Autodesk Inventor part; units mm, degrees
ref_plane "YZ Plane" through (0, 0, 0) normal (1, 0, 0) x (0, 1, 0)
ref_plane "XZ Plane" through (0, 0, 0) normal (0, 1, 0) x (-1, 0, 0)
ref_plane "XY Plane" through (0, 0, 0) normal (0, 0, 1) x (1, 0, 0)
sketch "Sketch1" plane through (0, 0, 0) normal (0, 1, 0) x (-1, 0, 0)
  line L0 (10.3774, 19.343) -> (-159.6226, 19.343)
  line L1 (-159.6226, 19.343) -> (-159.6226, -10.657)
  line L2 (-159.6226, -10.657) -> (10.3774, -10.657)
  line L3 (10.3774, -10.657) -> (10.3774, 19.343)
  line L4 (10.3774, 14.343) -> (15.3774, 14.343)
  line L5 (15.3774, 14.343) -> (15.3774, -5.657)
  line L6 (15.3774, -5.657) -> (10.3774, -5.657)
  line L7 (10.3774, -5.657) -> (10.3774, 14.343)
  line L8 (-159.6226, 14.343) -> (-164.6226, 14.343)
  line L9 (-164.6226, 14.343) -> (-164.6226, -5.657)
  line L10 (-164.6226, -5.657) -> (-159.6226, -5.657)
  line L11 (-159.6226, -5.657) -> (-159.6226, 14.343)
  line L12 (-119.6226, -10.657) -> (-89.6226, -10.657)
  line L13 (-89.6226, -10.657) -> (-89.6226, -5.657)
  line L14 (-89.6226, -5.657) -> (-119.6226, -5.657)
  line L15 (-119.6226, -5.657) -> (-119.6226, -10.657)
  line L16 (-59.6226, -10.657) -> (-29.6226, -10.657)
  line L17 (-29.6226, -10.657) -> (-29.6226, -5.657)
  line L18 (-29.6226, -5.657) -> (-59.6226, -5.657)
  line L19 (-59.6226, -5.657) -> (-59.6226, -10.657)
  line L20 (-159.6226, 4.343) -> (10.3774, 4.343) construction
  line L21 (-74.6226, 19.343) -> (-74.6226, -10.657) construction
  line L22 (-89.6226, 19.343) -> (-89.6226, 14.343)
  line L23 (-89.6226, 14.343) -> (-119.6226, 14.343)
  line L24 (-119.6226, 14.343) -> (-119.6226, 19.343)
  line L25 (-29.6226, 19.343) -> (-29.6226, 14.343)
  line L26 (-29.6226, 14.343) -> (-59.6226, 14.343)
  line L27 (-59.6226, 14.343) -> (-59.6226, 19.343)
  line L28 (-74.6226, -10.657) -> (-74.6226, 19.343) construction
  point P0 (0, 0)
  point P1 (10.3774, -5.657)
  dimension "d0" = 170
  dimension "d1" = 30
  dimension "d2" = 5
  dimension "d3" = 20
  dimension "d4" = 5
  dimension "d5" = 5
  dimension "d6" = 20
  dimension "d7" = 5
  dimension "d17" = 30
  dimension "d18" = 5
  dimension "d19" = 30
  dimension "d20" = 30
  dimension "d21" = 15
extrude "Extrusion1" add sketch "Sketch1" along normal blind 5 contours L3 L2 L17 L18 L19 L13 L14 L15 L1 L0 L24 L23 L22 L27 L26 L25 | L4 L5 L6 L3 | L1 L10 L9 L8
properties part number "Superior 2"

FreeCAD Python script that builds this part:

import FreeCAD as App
import Part
import Sketcher

V = App.Vector
Q = App.Units.Quantity

doc = App.newDocument("Part")
body = doc.addObject("PartDesign::Body", "Body")

sketch1 = body.newObject("Sketcher::SketchObject", "Sketch")
sketch1.AttachmentSupport = (doc.getObject("XZ_Plane"), [""])
sketch1.MapMode = "FlatFace"
sketch1.addGeometry(Part.LineSegment(V(-10, 14, 0), V(-10, 19, 0)), False)
sketch1.addGeometry(Part.LineSegment(V(-10, 19, 0), V(30, 19, 0)), False)
sketch1.addGeometry(Part.LineSegment(V(30, 19, 0), V(30, 14, 0)), False)
sketch1.addGeometry(Part.LineSegment(V(30, 14, 0), V(60, 14, 0)), False)
sketch1.addGeometry(Part.LineSegment(V(60, 14, 0), V(60, 19, 0)), False)
sketch1.addGeometry(Part.LineSegment(V(60, 19, 0), V(90, 19, 0)), False)
sketch1.addGeometry(Part.LineSegment(V(90, 19, 0), V(90, 14, 0)), False)
sketch1.addGeometry(Part.LineSegment(V(90, 14, 0), V(120, 14, 0)), False)
sketch1.addGeometry(Part.LineSegment(V(120, 14, 0), V(120, 19, 0)), False)
sketch1.addGeometry(Part.LineSegment(V(120, 19, 0), V(160, 19, 0)), False)
sketch1.addGeometry(Part.LineSegment(V(160, 19, 0), V(160, 14, 0)), False)
sketch1.addGeometry(Part.LineSegment(V(160, 14, 0), V(165, 14, 0)), False)
sketch1.addGeometry(Part.LineSegment(V(165, 14, 0), V(165, -6, 0)), False)
sketch1.addGeometry(Part.LineSegment(V(165, -6, 0), V(160, -6, 0)), False)
sketch1.addGeometry(Part.LineSegment(V(160, -6, 0), V(160, -11, 0)), False)
sketch1.addGeometry(Part.LineSegment(V(160, -11, 0), V(120, -11, 0)), False)
sketch1.addGeometry(Part.LineSegment(V(120, -11, 0), V(120, -6, 0)), False)
sketch1.addGeometry(Part.LineSegment(V(120, -6, 0), V(90, -6, 0)), False)
sketch1.addGeometry(Part.LineSegment(V(90, -6, 0), V(90, -11, 0)), False)
sketch1.addGeometry(Part.LineSegment(V(90, -11, 0), V(60, -11, 0)), False)
sketch1.addGeometry(Part.LineSegment(V(60, -11, 0), V(60, -6, 0)), False)
sketch1.addGeometry(Part.LineSegment(V(60, -6, 0), V(30, -6, 0)), False)
sketch1.addGeometry(Part.LineSegment(V(30, -6, 0), V(30, -11, 0)), False)
sketch1.addGeometry(Part.LineSegment(V(30, -11, 0), V(-10, -11, 0)), False)
sketch1.addGeometry(Part.LineSegment(V(-10, -11, 0), V(-10, -6, 0)), False)
sketch1.addGeometry(Part.LineSegment(V(-10, -6, 0), V(-15, -6, 0)), False)
sketch1.addGeometry(Part.LineSegment(V(-15, -6, 0), V(-15, 14, 0)), False)
sketch1.addGeometry(Part.LineSegment(V(-15, 14, 0), V(-10, 14, 0)), False)
sketch1.addConstraint(Sketcher.Constraint("Coincident", 0, 2, 1, 1))
sketch1.addConstraint(Sketcher.Constraint("Coincident", 1, 2, 2, 1))
sketch1.addConstraint(Sketcher.Constraint("Coincident", 2, 2, 3, 1))
sketch1.addConstraint(Sketcher.Constraint("Coincident", 3, 2, 4, 1))
sketch1.addConstraint(Sketcher.Constraint("Coincident", 4, 2, 5, 1))
sketch1.addConstraint(Sketcher.Constraint("Coincident", 5, 2, 6, 1))
sketch1.addConstraint(Sketcher.Constraint("Coincident", 6, 2, 7, 1))
sketch1.addConstraint(Sketcher.Constraint("Coincident", 7, 2, 8, 1))
sketch1.addConstraint(Sketcher.Constraint("Coincident", 8, 2, 9, 1))
sketch1.addConstraint(Sketcher.Constraint("Coincident", 9, 2, 10, 1))
sketch1.addConstraint(Sketcher.Constraint("Coincident", 10, 2, 11, 1))
sketch1.addConstraint(Sketcher.Constraint("Coincident", 11, 2, 12, 1))
sketch1.addConstraint(Sketcher.Constraint("Coincident", 12, 2, 13, 1))
sketch1.addConstraint(Sketcher.Constraint("Coincident", 13, 2, 14, 1))
sketch1.addConstraint(Sketcher.Constraint("Coincident", 14, 2, 15, 1))
sketch1.addConstraint(Sketcher.Constraint("Coincident", 15, 2, 16, 1))
sketch1.addConstraint(Sketcher.Constraint("Coincident", 16, 2, 17, 1))
sketch1.addConstraint(Sketcher.Constraint("Coincident", 17, 2, 18, 1))
sketch1.addConstraint(Sketcher.Constraint("Coincident", 18, 2, 19, 1))
sketch1.addConstraint(Sketcher.Constraint("Coincident", 19, 2, 20, 1))
sketch1.addConstraint(Sketcher.Constraint("Coincident", 20, 2, 21, 1))
sketch1.addConstraint(Sketcher.Constraint("Coincident", 21, 2, 22, 1))
sketch1.addConstraint(Sketcher.Constraint("Coincident", 22, 2, 23, 1))
sketch1.addConstraint(Sketcher.Constraint("Coincident", 23, 2, 24, 1))
sketch1.addConstraint(Sketcher.Constraint("Coincident", 24, 2, 25, 1))
sketch1.addConstraint(Sketcher.Constraint("Coincident", 25, 2, 26, 1))
sketch1.addConstraint(Sketcher.Constraint("Coincident", 26, 2, 27, 1))
sketch1.addConstraint(Sketcher.Constraint("Coincident", 27, 2, 0, 1))
sketch1.addConstraint(Sketcher.Constraint("Vertical", 0))
sketch1.addConstraint(Sketcher.Constraint("Horizontal", 1))
sketch1.addConstraint(Sketcher.Constraint("Vertical", 2))
sketch1.addConstraint(Sketcher.Constraint("Horizontal", 3))
sketch1.addConstraint(Sketcher.Constraint("Vertical", 4))
sketch1.addConstraint(Sketcher.Constraint("Horizontal", 5))
sketch1.addConstraint(Sketcher.Constraint("Vertical", 6))
sketch1.addConstraint(Sketcher.Constraint("Horizontal", 7))
sketch1.addConstraint(Sketcher.Constraint("Vertical", 8))
sketch1.addConstraint(Sketcher.Constraint("Horizontal", 9))
sketch1.addConstraint(Sketcher.Constraint("Vertical", 10))
sketch1.addConstraint(Sketcher.Constraint("Horizontal", 11))
sketch1.addConstraint(Sketcher.Constraint("Vertical", 12))
sketch1.addConstraint(Sketcher.Constraint("Horizontal", 13))
sketch1.addConstraint(Sketcher.Constraint("Vertical", 14))
sketch1.addConstraint(Sketcher.Constraint("Horizontal", 15))
sketch1.addConstraint(Sketcher.Constraint("Vertical", 16))
sketch1.addConstraint(Sketcher.Constraint("Horizontal", 17))
sketch1.addConstraint(Sketcher.Constraint("Vertical", 18))
sketch1.addConstraint(Sketcher.Constraint("Horizontal", 19))
sketch1.addConstraint(Sketcher.Constraint("Vertical", 20))
sketch1.addConstraint(Sketcher.Constraint("Horizontal", 21))
sketch1.addConstraint(Sketcher.Constraint("Vertical", 22))
sketch1.addConstraint(Sketcher.Constraint("Horizontal", 23))
sketch1.addConstraint(Sketcher.Constraint("Vertical", 24))
sketch1.addConstraint(Sketcher.Constraint("Horizontal", 25))
sketch1.addConstraint(Sketcher.Constraint("Vertical", 26))
sketch1.addConstraint(Sketcher.Constraint("Horizontal", 27))
sketch1.addConstraint(Sketcher.Constraint("Horizontal", 1, 2, 4, 2))
sketch1.addConstraint(Sketcher.Constraint("Horizontal", 3, 2, 6, 2))
sketch1.addConstraint(Sketcher.Constraint("Horizontal", 5, 2, 8, 2))
sketch1.addConstraint(Sketcher.Constraint("Horizontal", 7, 2, 10, 2))
sketch1.addConstraint(Sketcher.Constraint("Horizontal", 13, 2, 16, 2))
sketch1.addConstraint(Sketcher.Constraint("Horizontal", 15, 2, 18, 2))
sketch1.addConstraint(Sketcher.Constraint("Horizontal", 17, 2, 20, 2))
sketch1.addConstraint(Sketcher.Constraint("Horizontal", 19, 2, 22, 2))
sketch1.addConstraint(Sketcher.Constraint("Horizontal", 21, 2, 24, 2))
sketch1.addConstraint(Sketcher.Constraint("Horizontal", 11, 2, 26, 2))
sketch1.addConstraint(Sketcher.Constraint("Vertical", 10, 2, 13, 2))
sketch1.addConstraint(Sketcher.Constraint("Vertical", 8, 2, 15, 2))
sketch1.addConstraint(Sketcher.Constraint("Vertical", 6, 2, 17, 2))
sketch1.addConstraint(Sketcher.Constraint("Vertical", 4, 2, 19, 2))
sketch1.addConstraint(Sketcher.Constraint("Vertical", 2, 2, 21, 2))
sketch1.addConstraint(Sketcher.Constraint("Vertical", 0, 2, 23, 2))
sketch1.addConstraint(Sketcher.Constraint("Equal", 3, 5))
sketch1.addConstraint(Sketcher.Constraint("Equal", 5, 7))
sketch1.addConstraint(Sketcher.Constraint("Equal", 1, 9))
sketch1.addConstraint(Sketcher.Constraint("Equal", 13, 25))
sketch1.addConstraint(Sketcher.Constraint("Equal", 27, 0))
sketch1.addConstraint(Sketcher.Constraint("Equal", 10, 14))
sketch1.addConstraint(Sketcher.Constraint("DistanceX", 3, 1, 3, 2, Q("30 mm")))
sketch1.addConstraint(Sketcher.Constraint("DistanceX", 11, 1, 11, 2, Q("5 mm")))
sketch1.addConstraint(Sketcher.Constraint("DistanceY", 12, 2, 12, 1, Q("20 mm")))
sketch1.addConstraint(Sketcher.Constraint("DistanceX", 1, 1, 1, 2, Q("40 mm")))
sketch1.addConstraint(Sketcher.Constraint("DistanceY", -1, 1, 0, 2, Q("19.343 mm")))
sketch1.addConstraint(Sketcher.Constraint("DistanceX", 0, 2, -1, 1, Q("10.3774 mm")))
pad1 = body.newObject("PartDesign::Pad", "Pad")
pad1.Profile = sketch1
pad1.Length = 5
pad1.Reversed = True

doc.recompute()
